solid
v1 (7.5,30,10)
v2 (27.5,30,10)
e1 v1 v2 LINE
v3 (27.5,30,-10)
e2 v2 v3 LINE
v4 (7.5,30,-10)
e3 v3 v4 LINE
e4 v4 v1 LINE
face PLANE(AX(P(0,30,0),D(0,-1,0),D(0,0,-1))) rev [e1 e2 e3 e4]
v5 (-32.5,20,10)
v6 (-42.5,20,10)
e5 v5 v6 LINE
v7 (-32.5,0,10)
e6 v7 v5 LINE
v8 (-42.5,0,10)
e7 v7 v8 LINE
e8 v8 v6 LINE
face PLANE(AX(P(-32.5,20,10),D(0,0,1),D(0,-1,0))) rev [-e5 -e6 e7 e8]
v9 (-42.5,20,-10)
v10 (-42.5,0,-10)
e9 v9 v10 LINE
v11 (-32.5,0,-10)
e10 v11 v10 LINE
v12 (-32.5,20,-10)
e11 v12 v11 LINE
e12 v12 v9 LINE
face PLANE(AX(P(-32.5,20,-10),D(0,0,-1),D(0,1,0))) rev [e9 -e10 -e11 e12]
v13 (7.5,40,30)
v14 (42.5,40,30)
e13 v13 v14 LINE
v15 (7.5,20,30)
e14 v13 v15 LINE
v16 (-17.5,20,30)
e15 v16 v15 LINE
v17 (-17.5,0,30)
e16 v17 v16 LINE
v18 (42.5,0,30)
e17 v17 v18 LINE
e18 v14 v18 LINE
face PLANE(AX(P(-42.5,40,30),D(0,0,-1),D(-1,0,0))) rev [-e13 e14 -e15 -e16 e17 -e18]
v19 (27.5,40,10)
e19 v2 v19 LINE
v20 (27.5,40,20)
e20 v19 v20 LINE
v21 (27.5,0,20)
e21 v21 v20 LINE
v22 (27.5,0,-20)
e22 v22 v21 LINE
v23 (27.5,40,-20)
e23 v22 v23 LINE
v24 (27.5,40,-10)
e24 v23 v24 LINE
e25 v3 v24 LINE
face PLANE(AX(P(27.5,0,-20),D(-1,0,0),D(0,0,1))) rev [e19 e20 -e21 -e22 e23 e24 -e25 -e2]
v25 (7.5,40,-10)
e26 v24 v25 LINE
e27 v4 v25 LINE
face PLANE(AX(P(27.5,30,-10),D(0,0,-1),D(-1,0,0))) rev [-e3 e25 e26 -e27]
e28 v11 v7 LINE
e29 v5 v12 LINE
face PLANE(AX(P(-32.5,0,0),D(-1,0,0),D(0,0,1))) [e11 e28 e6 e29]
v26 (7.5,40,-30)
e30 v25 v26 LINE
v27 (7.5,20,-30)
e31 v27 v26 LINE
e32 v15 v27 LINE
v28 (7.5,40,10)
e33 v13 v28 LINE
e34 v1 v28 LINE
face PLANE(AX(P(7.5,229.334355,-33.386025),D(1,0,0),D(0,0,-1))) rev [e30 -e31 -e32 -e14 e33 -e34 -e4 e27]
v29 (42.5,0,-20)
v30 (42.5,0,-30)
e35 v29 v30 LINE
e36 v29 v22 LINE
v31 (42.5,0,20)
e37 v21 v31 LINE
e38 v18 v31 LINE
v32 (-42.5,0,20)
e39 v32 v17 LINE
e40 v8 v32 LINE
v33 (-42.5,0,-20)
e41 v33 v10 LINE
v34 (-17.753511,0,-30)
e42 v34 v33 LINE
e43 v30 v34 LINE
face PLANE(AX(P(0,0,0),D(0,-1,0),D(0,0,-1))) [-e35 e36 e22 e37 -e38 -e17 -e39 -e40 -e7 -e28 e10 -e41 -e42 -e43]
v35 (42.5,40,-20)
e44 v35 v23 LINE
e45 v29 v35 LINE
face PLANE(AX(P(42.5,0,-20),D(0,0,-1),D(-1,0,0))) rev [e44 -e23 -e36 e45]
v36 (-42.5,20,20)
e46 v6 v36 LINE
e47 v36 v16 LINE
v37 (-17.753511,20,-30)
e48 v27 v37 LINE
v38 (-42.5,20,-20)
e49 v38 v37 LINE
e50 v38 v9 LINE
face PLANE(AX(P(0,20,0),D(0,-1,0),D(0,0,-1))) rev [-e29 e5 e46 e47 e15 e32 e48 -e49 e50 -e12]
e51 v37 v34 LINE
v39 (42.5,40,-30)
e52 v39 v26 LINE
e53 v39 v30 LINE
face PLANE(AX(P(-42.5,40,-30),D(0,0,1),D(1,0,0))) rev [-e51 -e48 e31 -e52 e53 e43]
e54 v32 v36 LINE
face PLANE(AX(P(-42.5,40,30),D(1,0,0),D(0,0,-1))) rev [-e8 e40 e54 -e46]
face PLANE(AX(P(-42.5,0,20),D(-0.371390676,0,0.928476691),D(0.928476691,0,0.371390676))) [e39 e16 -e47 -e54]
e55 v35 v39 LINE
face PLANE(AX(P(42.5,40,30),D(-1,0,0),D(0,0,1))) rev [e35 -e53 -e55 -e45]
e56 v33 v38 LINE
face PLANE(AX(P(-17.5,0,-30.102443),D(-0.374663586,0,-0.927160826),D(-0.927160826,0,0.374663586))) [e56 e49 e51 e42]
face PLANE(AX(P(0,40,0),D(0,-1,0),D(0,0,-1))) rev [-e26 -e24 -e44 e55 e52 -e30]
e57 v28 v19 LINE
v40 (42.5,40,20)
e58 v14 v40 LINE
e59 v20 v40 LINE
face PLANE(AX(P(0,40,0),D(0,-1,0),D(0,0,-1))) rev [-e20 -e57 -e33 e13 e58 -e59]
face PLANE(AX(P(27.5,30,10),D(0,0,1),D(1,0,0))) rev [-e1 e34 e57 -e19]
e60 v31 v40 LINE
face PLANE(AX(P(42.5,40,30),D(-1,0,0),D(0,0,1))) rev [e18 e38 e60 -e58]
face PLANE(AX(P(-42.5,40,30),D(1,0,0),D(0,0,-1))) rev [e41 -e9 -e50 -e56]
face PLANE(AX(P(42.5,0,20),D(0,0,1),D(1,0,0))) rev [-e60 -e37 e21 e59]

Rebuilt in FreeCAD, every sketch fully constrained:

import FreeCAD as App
import Part
import Sketcher
from FreeCAD import Vector


def add_polygon(sketch, points):
    """Adds a closed chain of lines whose ends are joined by coincident constraints."""
    first, n = sketch.GeometryCount, len(points)
    for a, b in zip(points, points[1:] + points[:1]):
        sketch.addGeometry(Part.LineSegment(App.Vector(*a, 0), App.Vector(*b, 0)), False)
    for i in range(n):
        sketch.addConstraint(Sketcher.Constraint("Coincident", first + i, 2, first + (i + 1) % n, 1))

doc = App.newDocument("Part")
body = doc.addObject("PartDesign::Body", "Body")

# Sketch on XZ plane
sketch1 = doc.addObject("Sketcher::SketchObject", "Sketch")
body.addObject(sketch1)
sketch1.AttachmentSupport = (doc.XZ_Plane, [""])
sketch1.MapMode = "FlatFace"
add_polygon(sketch1, [(-42, -30), (-42, 30), (42, 30), (42, -30)])  # lines 0-3
sketch1.addConstraint([
    Sketcher.Constraint("Vertical", 0),
    Sketcher.Constraint("Horizontal", 1),
    Sketcher.Constraint("Vertical", 2),
    Sketcher.Constraint("Horizontal", 3),
    Sketcher.Constraint("Symmetric", 0, 2, 2, 2, -1, 1),
    Sketcher.Constraint("DistanceX", 1, 1, 1, 2, 85.0),
    Sketcher.Constraint("DistanceY", 0, 1, 0, 2, 60.0),
])
pad1 = doc.addObject("PartDesign::Pad", "Pad")
body.addObject(pad1)
pad1.Profile = sketch1
pad1.Length = 40
pad1.Reversed = True

# Sketch on XZ plane
sketch2 = doc.addObject("Sketcher::SketchObject", "Sketch001")
body.addObject(sketch2)
sketch2.AttachmentSupport = (doc.XZ_Plane, [""])
sketch2.MapMode = "FlatFace"
sketch2.AttachmentOffset = App.Placement(Vector(0, 0, -40), App.Rotation())
add_polygon(sketch2, [(28, -20), (28, 20), (42, 20), (42, -20)])  # lines 0-3
sketch2.addConstraint([
    Sketcher.Constraint("Vertical", 0),
    Sketcher.Constraint("Horizontal", 1),
    Sketcher.Constraint("Vertical", 2),
    Sketcher.Constraint("Horizontal", 3),
    Sketcher.Constraint("DistanceX", 1, 1, 1, 2, 15.0),
    Sketcher.Constraint("DistanceY", 0, 1, 0, 2, 40.0),
    Sketcher.Constraint("DistanceY", -1, 1, 0, 2, 20.0),
    Sketcher.Constraint("DistanceX", -1, 1, 0, 2, 27.5),
])
pocket1 = doc.addObject("PartDesign::Pocket", "Pocket")
body.addObject(pocket1)
pocket1.Profile = sketch2
pocket1.Type = "ThroughAll"
pocket1.Reversed = True

# Sketch on XZ plane
sketch3 = doc.addObject("Sketcher::SketchObject", "Sketch002")
body.addObject(sketch3)
sketch3.AttachmentSupport = (doc.XZ_Plane, [""])
sketch3.MapMode = "FlatFace"
sketch3.AttachmentOffset = App.Placement(Vector(0, 0, -40), App.Rotation())
add_polygon(sketch3, [(8, -10), (8, 10), (28, 10), (28, -10)])  # lines 0-3
sketch3.addConstraint([
    Sketcher.Constraint("Vertical", 0),
    Sketcher.Constraint("Horizontal", 1),
    Sketcher.Constraint("Vertical", 2),
    Sketcher.Constraint("Horizontal", 3),
    Sketcher.Constraint("Equal", 3, 0),
    Sketcher.Constraint("DistanceX", 1, 1, 1, 2, 20.0),
    Sketcher.Constraint("DistanceY", -1, 1, 0, 2, 10.0),
    Sketcher.Constraint("DistanceX", -1, 1, 0, 2, 7.5),
])
pocket2 = doc.addObject("PartDesign::Pocket", "Pocket001")
body.addObject(pocket2)
pocket2.Profile = sketch3
pocket2.Length = 10
pocket2.Reversed = True

# Sketch on XZ plane
sketch4 = doc.addObject("Sketcher::SketchObject", "Sketch003")
body.addObject(sketch4)
sketch4.AttachmentSupport = (doc.XZ_Plane, [""])
sketch4.MapMode = "FlatFace"
sketch4.AttachmentOffset = App.Placement(Vector(0, 0, -40), App.Rotation())
add_polygon(sketch4, [(8, 211), (8, -208), (-343, -208), (-343, 211)])  # lines 0-3
sketch4.addConstraint([
    Sketcher.Constraint("Vertical", 0),
    Sketcher.Constraint("Horizontal", 1),
    Sketcher.Constraint("Vertical", 2),
    Sketcher.Constraint("Horizontal", 3),
    Sketcher.Constraint("DistanceX", -1, 1, 0, 2, 7.5),
    Sketcher.Constraint("DistanceX", 1, 2, 1, 1, 350.22212),
    Sketcher.Constraint("DistanceY", 0, 2, 0, 1, 419.299967),
    Sketcher.Constraint("DistanceY", 0, 2, -1, 1, 208.497085),
])
pocket3 = doc.addObject("PartDesign::Pocket", "Pocket002")
body.addObject(pocket3)
pocket3.Profile = sketch4
pocket3.Type = "TwoLengths"
pocket3.Length = 66.622024
pocket3.Length2 = 20

# Sketch on YZ plane
sketch5 = doc.addObject("Sketcher::SketchObject", "Sketch004")
body.addObject(sketch5)
sketch5.AttachmentSupport = (doc.YZ_Plane, [""])
sketch5.MapMode = "FlatFace"
sketch5.AttachmentOffset = App.Placement(Vector(0, 0, -42.5), App.Rotation())
add_polygon(sketch5, [(20, -10), (0, -10), (0, 10), (20, 10)])  # lines 0-3
sketch5.addConstraint([
    Sketcher.Constraint("Horizontal", 0),
    Sketcher.Constraint("Vertical", 1),
    Sketcher.Constraint("Horizontal", 2),
    Sketcher.Constraint("Vertical", 3),
    Sketcher.Constraint("Symmetric", 0, 2, 1, 2, -1, 1),
    Sketcher.Constraint("Equal", 2, 1),
    Sketcher.Constraint("DistanceX", 0, 2, 0, 1, 20.0),
])
pocket4 = doc.addObject("PartDesign::Pocket", "Pocket003")
body.addObject(pocket4)
pocket4.Profile = sketch5
pocket4.Length = 10
pocket4.Reversed = True

# Sketch on XZ plane
sketch6 = doc.addObject("Sketcher::SketchObject", "Sketch005")
body.addObject(sketch6)
sketch6.AttachmentSupport = (doc.XZ_Plane, [""])
sketch6.MapMode = "FlatFace"
sketch6.AttachmentOffset = App.Placement(Vector(0, 0, -20), App.Rotation())
add_polygon(sketch6, [(-42, -20), (-18, -30), (-21, -39), (-46, -29)])  # lines 0-3
add_polygon(sketch6, [(-18, 30), (-42, 20), (-46, 29), (-21, 39)])  # lines 4-7
sketch6.addConstraint([
    Sketcher.Constraint("Symmetric", 3, 2, 4, 2, -1),
    Sketcher.Constraint("Perpendicular", 0, 1),
    Sketcher.Constraint("Perpendicular", 1, 2),
    Sketcher.Constraint("Perpendicular", 2, 3),
    Sketcher.Constraint("Perpendicular", 4, 5),
    Sketcher.Constraint("Perpendicular", 5, 6),
    Sketcher.Constraint("Perpendicular", 6, 7),
    Sketcher.Constraint("Vertical", 0, 2, 7, 2),
    Sketcher.Constraint("Equal", 3, 5),
    Sketcher.Constraint("Distance", 1, 10.0),
    Sketcher.Constraint("DistanceY", 3, 2, -1, 1, 20.0),
    Sketcher.Constraint("DistanceY", -1, 1, 7, 2, 30.0),
    Sketcher.Constraint("DistanceX", 2, 2, 1, 2, 25.0),
    Sketcher.Constraint("DistanceX", 0, 2, -1, 1, 17.5),
    Sketcher.Constraint("Distance", 0, 26.964038),
])
pocket5 = doc.addObject("PartDesign::Pocket", "Pocket004")
body.addObject(pocket5)
pocket5.Profile = sketch6
pocket5.Type = "ThroughAll"
pocket5.Reversed = True

doc.recompute()
